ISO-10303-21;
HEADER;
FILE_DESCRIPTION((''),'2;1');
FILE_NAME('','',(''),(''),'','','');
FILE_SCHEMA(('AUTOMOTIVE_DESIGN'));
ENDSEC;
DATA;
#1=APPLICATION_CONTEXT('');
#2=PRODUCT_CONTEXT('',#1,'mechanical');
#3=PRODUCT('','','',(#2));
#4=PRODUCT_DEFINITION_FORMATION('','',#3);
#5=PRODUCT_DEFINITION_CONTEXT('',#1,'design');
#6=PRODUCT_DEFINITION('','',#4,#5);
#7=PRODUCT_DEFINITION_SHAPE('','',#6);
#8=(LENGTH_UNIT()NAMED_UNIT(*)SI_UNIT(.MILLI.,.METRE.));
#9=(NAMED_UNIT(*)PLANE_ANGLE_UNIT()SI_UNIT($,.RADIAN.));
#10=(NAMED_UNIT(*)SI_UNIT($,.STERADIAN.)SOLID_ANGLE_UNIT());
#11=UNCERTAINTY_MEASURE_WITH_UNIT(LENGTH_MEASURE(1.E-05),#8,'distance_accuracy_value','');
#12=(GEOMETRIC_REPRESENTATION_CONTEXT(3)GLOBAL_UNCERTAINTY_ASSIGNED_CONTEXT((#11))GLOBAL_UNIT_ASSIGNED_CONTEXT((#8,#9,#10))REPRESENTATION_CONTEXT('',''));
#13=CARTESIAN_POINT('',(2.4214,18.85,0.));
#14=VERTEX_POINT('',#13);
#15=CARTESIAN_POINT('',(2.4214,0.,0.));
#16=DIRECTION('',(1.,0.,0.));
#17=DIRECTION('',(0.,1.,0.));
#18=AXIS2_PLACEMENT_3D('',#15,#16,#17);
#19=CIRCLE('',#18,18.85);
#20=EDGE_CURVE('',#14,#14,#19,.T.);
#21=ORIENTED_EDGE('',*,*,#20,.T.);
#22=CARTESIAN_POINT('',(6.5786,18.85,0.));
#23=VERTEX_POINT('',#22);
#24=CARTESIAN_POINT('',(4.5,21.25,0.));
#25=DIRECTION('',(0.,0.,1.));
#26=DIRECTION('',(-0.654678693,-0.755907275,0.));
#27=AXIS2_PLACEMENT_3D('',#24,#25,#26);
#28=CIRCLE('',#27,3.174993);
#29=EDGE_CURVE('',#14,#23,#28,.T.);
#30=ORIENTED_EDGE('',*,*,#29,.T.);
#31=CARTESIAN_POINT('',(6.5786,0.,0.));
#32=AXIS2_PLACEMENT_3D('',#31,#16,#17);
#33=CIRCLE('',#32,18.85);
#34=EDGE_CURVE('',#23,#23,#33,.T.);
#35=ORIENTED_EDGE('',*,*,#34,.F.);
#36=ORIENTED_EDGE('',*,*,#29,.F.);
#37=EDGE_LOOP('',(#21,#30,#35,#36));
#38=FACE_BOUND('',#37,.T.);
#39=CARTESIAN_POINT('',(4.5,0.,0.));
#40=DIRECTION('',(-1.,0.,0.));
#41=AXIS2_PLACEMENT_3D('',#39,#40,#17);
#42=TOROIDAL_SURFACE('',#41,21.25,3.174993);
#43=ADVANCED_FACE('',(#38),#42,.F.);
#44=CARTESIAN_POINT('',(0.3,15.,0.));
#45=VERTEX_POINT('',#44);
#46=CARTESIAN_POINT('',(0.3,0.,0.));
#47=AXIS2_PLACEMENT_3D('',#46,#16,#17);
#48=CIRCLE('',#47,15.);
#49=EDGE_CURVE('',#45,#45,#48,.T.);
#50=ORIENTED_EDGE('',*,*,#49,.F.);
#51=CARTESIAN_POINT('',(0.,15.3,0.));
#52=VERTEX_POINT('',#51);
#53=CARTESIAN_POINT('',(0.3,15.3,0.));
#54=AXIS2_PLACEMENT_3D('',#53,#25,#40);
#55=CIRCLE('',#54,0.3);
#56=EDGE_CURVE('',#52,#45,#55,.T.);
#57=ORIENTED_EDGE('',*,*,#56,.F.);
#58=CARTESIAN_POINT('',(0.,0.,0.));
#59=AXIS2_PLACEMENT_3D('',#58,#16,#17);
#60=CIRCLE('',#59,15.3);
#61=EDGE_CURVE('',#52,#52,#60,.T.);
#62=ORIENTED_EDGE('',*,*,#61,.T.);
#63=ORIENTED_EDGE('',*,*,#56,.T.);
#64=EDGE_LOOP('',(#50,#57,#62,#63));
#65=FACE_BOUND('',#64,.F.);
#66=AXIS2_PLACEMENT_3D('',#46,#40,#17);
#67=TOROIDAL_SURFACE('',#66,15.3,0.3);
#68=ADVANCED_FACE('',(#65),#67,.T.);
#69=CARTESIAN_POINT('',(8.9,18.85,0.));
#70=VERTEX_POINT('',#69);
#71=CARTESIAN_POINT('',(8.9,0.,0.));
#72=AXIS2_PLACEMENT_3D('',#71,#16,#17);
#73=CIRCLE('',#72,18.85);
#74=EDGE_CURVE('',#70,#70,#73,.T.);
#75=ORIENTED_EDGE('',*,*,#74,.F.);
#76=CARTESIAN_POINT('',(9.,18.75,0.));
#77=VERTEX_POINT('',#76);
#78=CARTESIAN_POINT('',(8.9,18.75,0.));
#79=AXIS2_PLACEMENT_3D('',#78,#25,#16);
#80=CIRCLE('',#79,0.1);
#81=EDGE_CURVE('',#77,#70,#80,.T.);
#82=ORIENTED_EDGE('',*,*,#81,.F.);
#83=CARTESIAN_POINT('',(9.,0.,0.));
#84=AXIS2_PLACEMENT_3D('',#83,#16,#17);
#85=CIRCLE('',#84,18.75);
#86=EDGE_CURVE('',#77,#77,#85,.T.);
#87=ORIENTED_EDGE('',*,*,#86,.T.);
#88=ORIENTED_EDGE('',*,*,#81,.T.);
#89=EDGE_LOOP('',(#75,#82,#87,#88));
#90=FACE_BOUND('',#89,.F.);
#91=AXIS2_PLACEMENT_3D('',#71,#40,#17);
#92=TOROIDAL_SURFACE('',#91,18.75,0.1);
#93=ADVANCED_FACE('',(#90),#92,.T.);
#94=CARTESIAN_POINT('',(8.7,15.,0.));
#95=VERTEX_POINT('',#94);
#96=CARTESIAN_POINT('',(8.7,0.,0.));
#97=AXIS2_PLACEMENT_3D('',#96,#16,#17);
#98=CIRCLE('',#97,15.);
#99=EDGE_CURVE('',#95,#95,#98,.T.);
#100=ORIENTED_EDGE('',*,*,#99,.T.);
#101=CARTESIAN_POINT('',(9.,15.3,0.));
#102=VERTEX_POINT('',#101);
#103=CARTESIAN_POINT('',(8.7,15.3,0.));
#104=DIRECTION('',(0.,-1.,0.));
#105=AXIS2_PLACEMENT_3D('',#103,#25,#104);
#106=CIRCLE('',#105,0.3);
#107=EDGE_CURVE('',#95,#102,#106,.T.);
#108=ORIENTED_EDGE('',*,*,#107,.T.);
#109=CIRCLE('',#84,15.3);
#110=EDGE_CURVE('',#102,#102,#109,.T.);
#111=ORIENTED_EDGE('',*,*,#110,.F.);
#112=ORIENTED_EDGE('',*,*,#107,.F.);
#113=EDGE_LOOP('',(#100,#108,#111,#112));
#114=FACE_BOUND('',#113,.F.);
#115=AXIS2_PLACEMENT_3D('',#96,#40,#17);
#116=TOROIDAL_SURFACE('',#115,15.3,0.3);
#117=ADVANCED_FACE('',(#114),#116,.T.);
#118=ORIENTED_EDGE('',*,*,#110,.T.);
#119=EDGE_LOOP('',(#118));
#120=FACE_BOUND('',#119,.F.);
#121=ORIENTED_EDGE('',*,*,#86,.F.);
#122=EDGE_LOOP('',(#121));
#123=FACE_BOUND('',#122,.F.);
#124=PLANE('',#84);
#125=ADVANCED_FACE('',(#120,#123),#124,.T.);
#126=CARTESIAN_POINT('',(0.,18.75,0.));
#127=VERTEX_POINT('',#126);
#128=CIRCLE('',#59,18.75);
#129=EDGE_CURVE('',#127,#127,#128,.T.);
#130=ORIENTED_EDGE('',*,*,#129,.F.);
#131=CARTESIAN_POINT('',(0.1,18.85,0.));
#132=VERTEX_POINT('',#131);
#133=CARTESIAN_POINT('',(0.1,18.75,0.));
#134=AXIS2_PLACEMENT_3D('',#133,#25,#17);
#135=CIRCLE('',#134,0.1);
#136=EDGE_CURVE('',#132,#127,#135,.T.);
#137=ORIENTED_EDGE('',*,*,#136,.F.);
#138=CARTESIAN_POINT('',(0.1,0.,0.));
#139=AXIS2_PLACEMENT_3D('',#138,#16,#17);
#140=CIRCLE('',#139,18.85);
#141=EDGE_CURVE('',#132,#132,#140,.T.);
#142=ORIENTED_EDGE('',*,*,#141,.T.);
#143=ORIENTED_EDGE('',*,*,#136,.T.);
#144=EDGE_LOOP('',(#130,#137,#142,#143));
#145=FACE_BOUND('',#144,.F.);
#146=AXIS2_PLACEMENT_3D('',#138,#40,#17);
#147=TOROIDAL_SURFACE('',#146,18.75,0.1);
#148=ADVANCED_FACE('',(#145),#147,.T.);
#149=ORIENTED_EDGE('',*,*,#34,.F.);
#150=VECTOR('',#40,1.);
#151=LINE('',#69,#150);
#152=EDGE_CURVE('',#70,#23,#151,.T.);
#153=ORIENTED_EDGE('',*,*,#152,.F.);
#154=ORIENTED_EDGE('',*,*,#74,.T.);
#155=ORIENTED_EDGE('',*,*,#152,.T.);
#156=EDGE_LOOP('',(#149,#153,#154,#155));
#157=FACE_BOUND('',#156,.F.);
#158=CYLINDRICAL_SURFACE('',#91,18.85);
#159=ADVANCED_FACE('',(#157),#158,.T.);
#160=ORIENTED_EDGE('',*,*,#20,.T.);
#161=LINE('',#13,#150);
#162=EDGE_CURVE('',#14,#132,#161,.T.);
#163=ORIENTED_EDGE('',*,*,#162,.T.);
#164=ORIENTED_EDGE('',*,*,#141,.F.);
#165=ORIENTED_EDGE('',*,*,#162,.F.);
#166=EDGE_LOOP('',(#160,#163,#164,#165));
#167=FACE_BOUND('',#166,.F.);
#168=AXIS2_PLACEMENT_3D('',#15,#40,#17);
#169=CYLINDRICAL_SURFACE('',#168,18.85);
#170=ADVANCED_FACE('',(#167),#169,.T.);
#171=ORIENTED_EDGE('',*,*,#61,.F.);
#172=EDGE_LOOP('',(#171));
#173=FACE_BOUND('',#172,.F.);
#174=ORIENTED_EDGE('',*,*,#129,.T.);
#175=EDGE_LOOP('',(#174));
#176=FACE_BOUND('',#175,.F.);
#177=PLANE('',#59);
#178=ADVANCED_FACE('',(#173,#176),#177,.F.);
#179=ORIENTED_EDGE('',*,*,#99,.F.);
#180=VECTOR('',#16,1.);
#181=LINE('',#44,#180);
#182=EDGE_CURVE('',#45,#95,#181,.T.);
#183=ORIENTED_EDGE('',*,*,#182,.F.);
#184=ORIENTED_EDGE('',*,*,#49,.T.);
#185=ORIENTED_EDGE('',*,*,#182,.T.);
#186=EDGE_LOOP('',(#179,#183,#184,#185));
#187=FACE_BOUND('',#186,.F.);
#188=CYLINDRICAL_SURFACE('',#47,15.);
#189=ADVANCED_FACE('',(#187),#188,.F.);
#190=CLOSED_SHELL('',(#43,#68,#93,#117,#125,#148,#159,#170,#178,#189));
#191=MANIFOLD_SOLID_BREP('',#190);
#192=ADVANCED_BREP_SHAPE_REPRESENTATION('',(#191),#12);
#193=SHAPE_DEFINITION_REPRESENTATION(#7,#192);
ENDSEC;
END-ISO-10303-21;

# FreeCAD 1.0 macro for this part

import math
import FreeCAD as App
import Part
import Sketcher
from FreeCAD import Vector

doc = App.newDocument("Part")
body = doc.addObject("PartDesign::Body", "Body")

# Sketch on XY plane
sketch1 = body.newObject("Sketcher::SketchObject", "Sketch")
sketch1.AttachmentSupport = (doc.getObject("XY_Plane"), [""])
sketch1.MapMode = "FlatFace"
sketch1.addGeometry([
    Part.LineSegment(Vector(0, 18.75, 0), Vector(0, 15.3, 0)),  # 0
    Part.ArcOfCircle(Part.Circle(Vector(0.3, 15.3, 0), Vector(0, 0, 1), 0.3), math.radians(180), math.radians(270)),  # 1
    Part.LineSegment(Vector(0.3, 15, 0), Vector(8.7, 15, 0)),  # 2
    Part.ArcOfCircle(Part.Circle(Vector(8.7, 15.3, 0), Vector(0, 0, 1), 0.3), math.radians(-90), math.radians(0)),  # 3
    Part.LineSegment(Vector(9, 15.3, 0), Vector(9, 18.75, 0)),  # 4
    Part.ArcOfCircle(Part.Circle(Vector(8.9, 18.75, 0), Vector(0, 0, 1), 0.1), math.radians(0), math.radians(90)),  # 5
    Part.LineSegment(Vector(8.9, 18.85, 0), Vector(6.5786, 18.85, 0)),  # 6
    Part.ArcOfCircle(Part.Circle(Vector(4.5, 21.25, 0), Vector(0, 0, 1), 3.174993), math.radians(-130.895291), math.radians(-49.104709)),  # 7
    Part.LineSegment(Vector(2.4214, 18.85, 0), Vector(0.1, 18.85, 0)),  # 8
    Part.ArcOfCircle(Part.Circle(Vector(0.1, 18.75, 0), Vector(0, 0, 1), 0.1), math.radians(90), math.radians(180)),  # 9
], False)
sketch1.addConstraint([
    Sketcher.Constraint("Tangent", 0, 2, 1, 1),
    Sketcher.Constraint("Tangent", 1, 2, 2, 1),
    Sketcher.Constraint("Tangent", 2, 2, 3, 1),
    Sketcher.Constraint("Tangent", 3, 2, 4, 1),
    Sketcher.Constraint("Tangent", 4, 2, 5, 1),
    Sketcher.Constraint("Tangent", 5, 2, 6, 1),
    Sketcher.Constraint("Coincident", 6, 2, 7, 2),
    Sketcher.Constraint("Coincident", 7, 1, 8, 1),
    Sketcher.Constraint("Tangent", 8, 2, 9, 1),
    Sketcher.Constraint("Tangent", 9, 2, 0, 1),
    Sketcher.Constraint("Vertical", 0),
    Sketcher.Constraint("Horizontal", 2),
    Sketcher.Constraint("Vertical", 4),
    Sketcher.Constraint("Horizontal", 6),
    Sketcher.Constraint("Horizontal", 8),
    Sketcher.Constraint("Equal", 1, 3),
    Sketcher.Constraint("Equal", 5, 9),
    Sketcher.Constraint("PointOnObject", 0, 2, -2),
    Sketcher.Constraint("Horizontal", 5, 3, 9, 3),
    Sketcher.Constraint("Equal", 6, 8),
    Sketcher.Constraint("Radius", 1, 0.3),
    Sketcher.Constraint("Radius", 5, 0.1),
    Sketcher.Constraint("DistanceX", 2, 1, 2, 2, 8.4),
    Sketcher.Constraint("DistanceY", -1, 1, 1, 2, 15.0),
    Sketcher.Constraint("Radius", 7, 3.175),
    Sketcher.Constraint("DistanceY", 0, 2, 0, 1, 3.45),
    Sketcher.Constraint("DistanceY", 5, 3, 7, 3, 2.5),
])
revolution = body.newObject("PartDesign::Revolution", "Revolution")
revolution.Profile = sketch1
revolution.ReferenceAxis = (sketch1, ["H_Axis"])
revolution.Angle = 360

doc.recompute()
